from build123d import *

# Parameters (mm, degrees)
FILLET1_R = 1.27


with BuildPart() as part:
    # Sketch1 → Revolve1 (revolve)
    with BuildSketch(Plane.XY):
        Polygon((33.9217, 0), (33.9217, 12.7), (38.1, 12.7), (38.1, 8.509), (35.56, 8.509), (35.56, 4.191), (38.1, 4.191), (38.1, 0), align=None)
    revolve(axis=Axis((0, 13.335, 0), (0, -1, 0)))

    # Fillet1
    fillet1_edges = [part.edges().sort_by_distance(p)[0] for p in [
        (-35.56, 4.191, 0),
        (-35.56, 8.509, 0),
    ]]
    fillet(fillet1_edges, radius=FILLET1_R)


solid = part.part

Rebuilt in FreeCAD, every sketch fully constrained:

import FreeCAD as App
import Part
import Sketcher
from FreeCAD import Vector
Q = App.Units.Quantity


def edges_at(feature, points):
    """Names of the edges that pass closest to the given points."""
    edges = feature.Shape.Edges
    near = lambda p: min(range(len(edges)), key=lambda i: edges[i].distToShape(Part.Vertex(*p))[0])
    return sorted({f"Edge{near(p) + 1}" for p in points})


def add_polygon(sketch, points):
    """Adds a closed chain of lines whose ends are joined by coincident constraints."""
    first, n = sketch.GeometryCount, len(points)
    for a, b in zip(points, points[1:] + points[:1]):
        sketch.addGeometry(Part.LineSegment(App.Vector(*a, 0), App.Vector(*b, 0)), False)
    for i in range(n):
        sketch.addConstraint(Sketcher.Constraint("Coincident", first + i, 2, first + (i + 1) % n, 1))

doc = App.newDocument("Part")
body = doc.addObject("PartDesign::Body", "Body")

# Sketch on XY plane
sketch1 = body.newObject("Sketcher::SketchObject", "Sketch")
sketch1.AttachmentSupport = (doc.getObject("XY_Plane"), [""])
sketch1.MapMode = "FlatFace"
add_polygon(sketch1, [(33.9, 12.7), (33.9, 0), (38.1, 0), (38.1, 4.2), (35.6, 4.2), (35.6, 8.5), (38.1, 8.5), (38.1, 12.7)])  # lines 0-7
sketch1.addConstraint(Sketcher.Constraint("Vertical", 0))
sketch1.addConstraint(Sketcher.Constraint("Horizontal", 1))
sketch1.addConstraint(Sketcher.Constraint("Vertical", 2))
sketch1.addConstraint(Sketcher.Constraint("Horizontal", 3))
sketch1.addConstraint(Sketcher.Constraint("Vertical", 4))
sketch1.addConstraint(Sketcher.Constraint("Horizontal", 5))
sketch1.addConstraint(Sketcher.Constraint("Vertical", 6))
sketch1.addConstraint(Sketcher.Constraint("Horizontal", 7))
sketch1.addConstraint(Sketcher.Constraint("PointOnObject", 0, 2, -1))
sketch1.addConstraint(Sketcher.Constraint("Vertical", 2, 2, 5, 2))
sketch1.addConstraint(Sketcher.Constraint("Equal", 2, 6))
sketch1.addConstraint(Sketcher.Constraint("DistanceX", 3, 2, 3, 1, Q("0.1 in")))
sketch1.addConstraint(Sketcher.Constraint("DistanceY", 0, 2, 0, 1, Q("0.5 in")))
sketch1.addConstraint(Sketcher.Constraint("DistanceY", 4, 1, 4, 2, Q("0.17 in")))
sketch1.addConstraint(Sketcher.Constraint("DistanceX", -1, 1, 1, 2, Q("1.5 in")))
sketch1.addConstraint(Sketcher.Constraint("DistanceX", 1, 1, 1, 2, Q("0.1645 in")))
revolution = body.newObject("PartDesign::Revolution", "Revolution")
revolution.Profile = sketch1
revolution.ReferenceAxis = (sketch1, ["V_Axis"])
revolution.Angle = 360
doc.recompute()

fillet = body.newObject("PartDesign::Fillet", "Fillet")
fillet.Base = (revolution, edges_at(revolution, [(-35.56, 4.191, 0), (-35.56, 8.509, 0)]))
fillet.Radius = Q("0.05 in")

doc.recompute()
